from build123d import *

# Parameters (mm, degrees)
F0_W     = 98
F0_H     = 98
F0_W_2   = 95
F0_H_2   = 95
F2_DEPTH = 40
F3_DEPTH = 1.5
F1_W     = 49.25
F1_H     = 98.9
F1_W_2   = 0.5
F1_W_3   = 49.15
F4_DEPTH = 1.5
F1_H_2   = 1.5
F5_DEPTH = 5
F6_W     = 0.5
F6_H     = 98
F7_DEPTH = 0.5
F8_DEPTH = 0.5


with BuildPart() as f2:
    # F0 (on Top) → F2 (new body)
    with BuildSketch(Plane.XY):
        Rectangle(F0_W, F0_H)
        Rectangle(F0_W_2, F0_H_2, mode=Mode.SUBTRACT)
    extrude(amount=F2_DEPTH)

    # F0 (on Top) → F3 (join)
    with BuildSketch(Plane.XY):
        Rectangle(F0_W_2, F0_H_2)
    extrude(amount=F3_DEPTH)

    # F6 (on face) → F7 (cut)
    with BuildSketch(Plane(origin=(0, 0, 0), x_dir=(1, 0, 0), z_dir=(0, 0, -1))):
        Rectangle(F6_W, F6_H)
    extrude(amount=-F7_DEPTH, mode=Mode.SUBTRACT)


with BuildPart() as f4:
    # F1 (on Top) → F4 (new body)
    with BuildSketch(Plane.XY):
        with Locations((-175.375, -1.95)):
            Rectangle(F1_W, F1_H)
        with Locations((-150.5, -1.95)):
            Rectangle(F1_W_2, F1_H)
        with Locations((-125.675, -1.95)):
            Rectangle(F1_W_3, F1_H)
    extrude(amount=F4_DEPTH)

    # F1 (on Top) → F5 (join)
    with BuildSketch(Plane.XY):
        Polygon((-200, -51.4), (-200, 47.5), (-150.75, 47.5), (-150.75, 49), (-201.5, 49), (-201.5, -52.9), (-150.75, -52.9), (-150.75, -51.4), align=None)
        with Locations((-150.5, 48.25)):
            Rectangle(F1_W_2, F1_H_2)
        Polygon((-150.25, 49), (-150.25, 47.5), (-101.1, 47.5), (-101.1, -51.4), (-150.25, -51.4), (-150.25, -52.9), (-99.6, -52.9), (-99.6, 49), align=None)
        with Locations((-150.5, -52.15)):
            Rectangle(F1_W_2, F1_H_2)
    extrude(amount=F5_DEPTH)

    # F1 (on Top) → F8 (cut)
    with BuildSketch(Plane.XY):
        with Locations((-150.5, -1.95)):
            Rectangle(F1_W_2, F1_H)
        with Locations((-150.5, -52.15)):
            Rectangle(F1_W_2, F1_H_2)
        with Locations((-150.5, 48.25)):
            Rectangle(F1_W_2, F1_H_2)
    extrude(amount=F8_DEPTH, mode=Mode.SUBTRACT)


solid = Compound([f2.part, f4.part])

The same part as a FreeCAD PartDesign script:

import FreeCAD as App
import Part
import Sketcher
from FreeCAD import Vector
Q = App.Units.Quantity


def add_polygon(sketch, points):
    """Adds a closed chain of lines whose ends are joined by coincident constraints."""
    first, n = sketch.GeometryCount, len(points)
    for a, b in zip(points, points[1:] + points[:1]):
        sketch.addGeometry(Part.LineSegment(App.Vector(*a, 0), App.Vector(*b, 0)), False)
    for i in range(n):
        sketch.addConstraint(Sketcher.Constraint("Coincident", first + i, 2, first + (i + 1) % n, 1))

doc = App.newDocument("Part")
params = doc.addObject("Spreadsheet::Sheet", "Params")
for row, (alias, value) in enumerate([
    ("sketch1_width", "98 mm"),
    ("sketch1_width2", "95 mm"),
    ("pad1_length", "40 mm"),
    ("sketch2_width", "95 mm"),
    ("pad2_length", "1.5 mm"),
    ("sketch3_height", "98 mm"),
    ("sketch3_width", "0.5 mm"),
    ("pocket1_length", "0.5 mm"),
    ("sketch4_width", "98.9 mm"),
    ("pad3_length", "1.5 mm"),
    ("sketch5_width", "101.9 mm"),
    ("sketch5_width2", "98.9 mm"),
    ("pad4_length", "5 mm"),
    ("sketch6_width", "0.5 mm"),
    ("sketch6_height", "101.9 mm"),
    ("pocket2_length", "0.5 mm"),
], start=1):
    params.set(f"A{row}", alias)
    params.set(f"B{row}", "=" + value)
    params.setAlias(f"B{row}", alias)

body = doc.addObject("PartDesign::Body", "Body")

sketch1 = doc.addObject("Sketcher::SketchObject", "Sketch")
body.addObject(sketch1)
sketch1.AttachmentSupport = (doc.XY_Plane, [""])
sketch1.MapMode = "FlatFace"
add_polygon(sketch1, [(-49, 49), (-49, -49), (49, -49), (49, 49)])
add_polygon(sketch1, [(48, -48), (-48, -48), (-48, 48), (48, 48)])
sketch1.addConstraint(Sketcher.Constraint("Vertical", 0))
sketch1.addConstraint(Sketcher.Constraint("Horizontal", 1))
sketch1.addConstraint(Sketcher.Constraint("Vertical", 2))
sketch1.addConstraint(Sketcher.Constraint("Horizontal", 3))
sketch1.addConstraint(Sketcher.Constraint("Horizontal", 4))
sketch1.addConstraint(Sketcher.Constraint("Vertical", 5))
sketch1.addConstraint(Sketcher.Constraint("Horizontal", 6))
sketch1.addConstraint(Sketcher.Constraint("Vertical", 7))
sketch1.addConstraint(Sketcher.Constraint("Symmetric", 0, 2, 2, 2, -1, 1))
sketch1.addConstraint(Sketcher.Constraint("Symmetric", 4, 2, 6, 2, -1, 1))
sketch1.addConstraint(Sketcher.Constraint("Equal", 3, 0))
sketch1.addConstraint(Sketcher.Constraint("Equal", 6, 5))
sketch1.addConstraint(Sketcher.Constraint("DistanceX", 1, 1, 1, 2, Q("98 mm")))
sketch1.addConstraint(Sketcher.Constraint("DistanceX", 4, 2, 4, 1, Q("95 mm")))
sketch1.setExpression("Constraints[20]", "Params.sketch1_width")
sketch1.setExpression("Constraints[21]", "Params.sketch1_width2")
pad1 = doc.addObject("PartDesign::Pad", "Pad")
body.addObject(pad1)
pad1.Profile = sketch1
pad1.setExpression("Length", "Params.pad1_length")

sketch2 = doc.addObject("Sketcher::SketchObject", "Sketch001")
body.addObject(sketch2)
sketch2.AttachmentSupport = (doc.XY_Plane, [""])
sketch2.MapMode = "FlatFace"
add_polygon(sketch2, [(-48, 48), (-48, -48), (48, -48), (48, 48)])
sketch2.addConstraint(Sketcher.Constraint("Vertical", 0))
sketch2.addConstraint(Sketcher.Constraint("Horizontal", 1))
sketch2.addConstraint(Sketcher.Constraint("Vertical", 2))
sketch2.addConstraint(Sketcher.Constraint("Horizontal", 3))
sketch2.addConstraint(Sketcher.Constraint("Symmetric", 0, 2, 2, 2, -1, 1))
sketch2.addConstraint(Sketcher.Constraint("Equal", 3, 0))
sketch2.addConstraint(Sketcher.Constraint("DistanceX", 1, 1, 1, 2, Q("95 mm")))
sketch2.setExpression("Constraints[10]", "Params.sketch2_width")
pad2 = doc.addObject("PartDesign::Pad", "Pad001")
body.addObject(pad2)
pad2.Profile = sketch2
pad2.setExpression("Length", "Params.pad2_length")

sketch3 = doc.addObject("Sketcher::SketchObject", "Sketch002")
body.addObject(sketch3)
sketch3.AttachmentSupport = (doc.XY_Plane, [""])
sketch3.MapMode = "FlatFace"
add_polygon(sketch3, [(-0.2, -49), (-0.2, 49), (0.2, 49), (0.2, -49)])
sketch3.addConstraint(Sketcher.Constraint("Vertical", 0))
sketch3.addConstraint(Sketcher.Constraint("Horizontal", 1))
sketch3.addConstraint(Sketcher.Constraint("Vertical", 2))
sketch3.addConstraint(Sketcher.Constraint("Horizontal", 3))
sketch3.addConstraint(Sketcher.Constraint("Symmetric", 0, 2, 2, 2, -1, 1))
sketch3.addConstraint(Sketcher.Constraint("DistanceY", 0, 1, 0, 2, Q("98 mm")))
sketch3.addConstraint(Sketcher.Constraint("DistanceX", 1, 1, 1, 2, Q("0.5 mm")))
sketch3.setExpression("Constraints[9]", "Params.sketch3_height")
sketch3.setExpression("Constraints[10]", "Params.sketch3_width")
pocket1 = doc.addObject("PartDesign::Pocket", "Pocket")
body.addObject(pocket1)
pocket1.Profile = sketch3
pocket1.setExpression("Length", "Params.pocket1_length")
pocket1.Reversed = True
body2 = doc.addObject("PartDesign::Body", "Body001")

sketch4 = doc.addObject("Sketcher::SketchObject", "Sketch003")
body2.addObject(sketch4)
sketch4.AttachmentSupport = (doc.getObject("XY_Plane001"), [""])
sketch4.MapMode = "FlatFace"
add_polygon(sketch4, [(-200, 48), (-200, -51), (-101, -51), (-101, 48)])
sketch4.addConstraint(Sketcher.Constraint("Vertical", 0))
sketch4.addConstraint(Sketcher.Constraint("Horizontal", 1))
sketch4.addConstraint(Sketcher.Constraint("Vertical", 2))
sketch4.addConstraint(Sketcher.Constraint("Horizontal", 3))
sketch4.addConstraint(Sketcher.Constraint("Equal", 3, 0))
sketch4.addConstraint(Sketcher.Constraint("DistanceX", 1, 1, 1, 2, Q("98.9 mm")))
sketch4.addConstraint(Sketcher.Constraint("DistanceX", 0, 2, -1, 1, Q("200 mm")))
sketch4.addConstraint(Sketcher.Constraint("DistanceY", 0, 2, -1, 1, Q("51.4 mm")))
sketch4.setExpression("Constraints[9]", "Params.sketch4_width")
pad3 = doc.addObject("PartDesign::Pad", "Pad002")
body2.addObject(pad3)
pad3.Profile = sketch4
pad3.setExpression("Length", "Params.pad3_length")

sketch5 = doc.addObject("Sketcher::SketchObject", "Sketch004")
body2.addObject(sketch5)
sketch5.AttachmentSupport = (doc.getObject("XY_Plane001"), [""])
sketch5.MapMode = "FlatFace"
add_polygon(sketch5, [(-100, -53), (-100, 49), (-202, 49), (-202, -53)])
add_polygon(sketch5, [(-200, -51), (-200, 48), (-101, 48), (-101, -51)])
sketch5.addConstraint(Sketcher.Constraint("Vertical", 0))
sketch5.addConstraint(Sketcher.Constraint("Horizontal", 1))
sketch5.addConstraint(Sketcher.Constraint("Vertical", 2))
sketch5.addConstraint(Sketcher.Constraint("Horizontal", 3))
sketch5.addConstraint(Sketcher.Constraint("Vertical", 4))
sketch5.addConstraint(Sketcher.Constraint("Horizontal", 5))
sketch5.addConstraint(Sketcher.Constraint("Vertical", 6))
sketch5.addConstraint(Sketcher.Constraint("Horizontal", 7))
sketch5.addConstraint(Sketcher.Constraint("Equal", 3, 0))
sketch5.addConstraint(Sketcher.Constraint("Equal", 7, 4))
sketch5.addConstraint(Sketcher.Constraint("DistanceX", 1, 2, 1, 1, Q("101.9 mm")))
sketch5.addConstraint(Sketcher.Constraint("DistanceX", 5, 1, 5, 2, Q("98.9 mm")))
sketch5.addConstraint(Sketcher.Constraint("DistanceY", -1, 1, 0, 2, Q("49 mm")))
sketch5.addConstraint(Sketcher.Constraint("DistanceX", 4, 2, -1, 1, Q("200 mm")))
sketch5.addConstraint(Sketcher.Constraint("DistanceX", 0, 2, -1, 1, Q("99.6 mm")))
sketch5.addConstraint(Sketcher.Constraint("DistanceY", -1, 1, 4, 2, Q("47.5 mm")))
sketch5.setExpression("Constraints[18]", "Params.sketch5_width")
sketch5.setExpression("Constraints[19]", "Params.sketch5_width2")
pad4 = doc.addObject("PartDesign::Pad", "Pad003")
body2.addObject(pad4)
pad4.Profile = sketch5
pad4.setExpression("Length", "Params.pad4_length")

sketch6 = doc.addObject("Sketcher::SketchObject", "Sketch005")
body2.addObject(sketch6)
sketch6.AttachmentSupport = (doc.getObject("XY_Plane001"), [""])
sketch6.MapMode = "FlatFace"
add_polygon(sketch6, [(-150.8, -52.9), (-150.2, -52.9), (-150.2, 49), (-150.8, 49)])
sketch6.addConstraint(Sketcher.Constraint("Horizontal", 0))
sketch6.addConstraint(Sketcher.Constraint("Vertical", 1))
sketch6.addConstraint(Sketcher.Constraint("Horizontal", 2))
sketch6.addConstraint(Sketcher.Constraint("Vertical", 3))
sketch6.addConstraint(Sketcher.Constraint("DistanceX", 0, 1, 0, 2, Q("0.5 mm")))
sketch6.addConstraint(Sketcher.Constraint("DistanceY", 1, 1, 1, 2, Q("101.9 mm")))
sketch6.addConstraint(Sketcher.Constraint("DistanceY", -1, 1, 1, 2, Q("49 mm")))
sketch6.addConstraint(Sketcher.Constraint("DistanceX", 0, 2, -1, 1, Q("150.25 mm")))
sketch6.setExpression("Constraints[8]", "Params.sketch6_width")
sketch6.setExpression("Constraints[9]", "Params.sketch6_height")
pocket2 = doc.addObject("PartDesign::Pocket", "Pocket001")
body2.addObject(pocket2)
pocket2.Profile = sketch6
pocket2.setExpression("Length", "Params.pocket2_length")
pocket2.Reversed = True

doc.recompute()
